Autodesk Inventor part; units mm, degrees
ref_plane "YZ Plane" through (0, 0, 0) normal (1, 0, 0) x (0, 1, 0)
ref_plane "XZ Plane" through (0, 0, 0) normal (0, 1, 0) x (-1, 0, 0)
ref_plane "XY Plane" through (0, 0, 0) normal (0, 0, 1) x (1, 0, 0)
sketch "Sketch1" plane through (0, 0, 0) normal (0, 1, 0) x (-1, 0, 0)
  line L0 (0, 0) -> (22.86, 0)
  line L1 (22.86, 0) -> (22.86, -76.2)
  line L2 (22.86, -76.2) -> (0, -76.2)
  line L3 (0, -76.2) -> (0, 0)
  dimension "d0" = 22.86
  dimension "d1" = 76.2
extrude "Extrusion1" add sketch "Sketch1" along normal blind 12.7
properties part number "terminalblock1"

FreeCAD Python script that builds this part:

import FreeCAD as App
import Part
import Sketcher
from FreeCAD import Vector
Q = App.Units.Quantity


def add_polygon(sketch, points):
    """Adds a closed chain of lines whose ends are joined by coincident constraints."""
    first, n = sketch.GeometryCount, len(points)
    for a, b in zip(points, points[1:] + points[:1]):
        sketch.addGeometry(Part.LineSegment(App.Vector(*a, 0), App.Vector(*b, 0)), False)
    for i in range(n):
        sketch.addConstraint(Sketcher.Constraint("Coincident", first + i, 2, first + (i + 1) % n, 1))

doc = App.newDocument("Part")
body = doc.addObject("PartDesign::Body", "Body")

sketch1 = body.newObject("Sketcher::SketchObject", "Sketch")
sketch1.AttachmentSupport = (doc.getObject("XZ_Plane"), [""])
sketch1.MapMode = "FlatFace"
add_polygon(sketch1, [(-23, 0), (0, 0), (0, -76), (-23, -76)])
sketch1.addConstraint([
    Sketcher.Constraint("Horizontal", 0),
    Sketcher.Constraint("Vertical", 1),
    Sketcher.Constraint("Horizontal", 2),
    Sketcher.Constraint("Vertical", 3),
    Sketcher.Constraint("Coincident", 0, 2, -1, 1),
    Sketcher.Constraint("DistanceY", 1, 2, 1, 1, Q("3 in")),
    Sketcher.Constraint("DistanceX", 0, 1, 0, 2, Q("0.9 in")),
])
pad1 = body.newObject("PartDesign::Pad", "Pad")
pad1.Profile = sketch1
pad1.Length = Q("0.5 in")
pad1.Reversed = True

doc.recompute()
